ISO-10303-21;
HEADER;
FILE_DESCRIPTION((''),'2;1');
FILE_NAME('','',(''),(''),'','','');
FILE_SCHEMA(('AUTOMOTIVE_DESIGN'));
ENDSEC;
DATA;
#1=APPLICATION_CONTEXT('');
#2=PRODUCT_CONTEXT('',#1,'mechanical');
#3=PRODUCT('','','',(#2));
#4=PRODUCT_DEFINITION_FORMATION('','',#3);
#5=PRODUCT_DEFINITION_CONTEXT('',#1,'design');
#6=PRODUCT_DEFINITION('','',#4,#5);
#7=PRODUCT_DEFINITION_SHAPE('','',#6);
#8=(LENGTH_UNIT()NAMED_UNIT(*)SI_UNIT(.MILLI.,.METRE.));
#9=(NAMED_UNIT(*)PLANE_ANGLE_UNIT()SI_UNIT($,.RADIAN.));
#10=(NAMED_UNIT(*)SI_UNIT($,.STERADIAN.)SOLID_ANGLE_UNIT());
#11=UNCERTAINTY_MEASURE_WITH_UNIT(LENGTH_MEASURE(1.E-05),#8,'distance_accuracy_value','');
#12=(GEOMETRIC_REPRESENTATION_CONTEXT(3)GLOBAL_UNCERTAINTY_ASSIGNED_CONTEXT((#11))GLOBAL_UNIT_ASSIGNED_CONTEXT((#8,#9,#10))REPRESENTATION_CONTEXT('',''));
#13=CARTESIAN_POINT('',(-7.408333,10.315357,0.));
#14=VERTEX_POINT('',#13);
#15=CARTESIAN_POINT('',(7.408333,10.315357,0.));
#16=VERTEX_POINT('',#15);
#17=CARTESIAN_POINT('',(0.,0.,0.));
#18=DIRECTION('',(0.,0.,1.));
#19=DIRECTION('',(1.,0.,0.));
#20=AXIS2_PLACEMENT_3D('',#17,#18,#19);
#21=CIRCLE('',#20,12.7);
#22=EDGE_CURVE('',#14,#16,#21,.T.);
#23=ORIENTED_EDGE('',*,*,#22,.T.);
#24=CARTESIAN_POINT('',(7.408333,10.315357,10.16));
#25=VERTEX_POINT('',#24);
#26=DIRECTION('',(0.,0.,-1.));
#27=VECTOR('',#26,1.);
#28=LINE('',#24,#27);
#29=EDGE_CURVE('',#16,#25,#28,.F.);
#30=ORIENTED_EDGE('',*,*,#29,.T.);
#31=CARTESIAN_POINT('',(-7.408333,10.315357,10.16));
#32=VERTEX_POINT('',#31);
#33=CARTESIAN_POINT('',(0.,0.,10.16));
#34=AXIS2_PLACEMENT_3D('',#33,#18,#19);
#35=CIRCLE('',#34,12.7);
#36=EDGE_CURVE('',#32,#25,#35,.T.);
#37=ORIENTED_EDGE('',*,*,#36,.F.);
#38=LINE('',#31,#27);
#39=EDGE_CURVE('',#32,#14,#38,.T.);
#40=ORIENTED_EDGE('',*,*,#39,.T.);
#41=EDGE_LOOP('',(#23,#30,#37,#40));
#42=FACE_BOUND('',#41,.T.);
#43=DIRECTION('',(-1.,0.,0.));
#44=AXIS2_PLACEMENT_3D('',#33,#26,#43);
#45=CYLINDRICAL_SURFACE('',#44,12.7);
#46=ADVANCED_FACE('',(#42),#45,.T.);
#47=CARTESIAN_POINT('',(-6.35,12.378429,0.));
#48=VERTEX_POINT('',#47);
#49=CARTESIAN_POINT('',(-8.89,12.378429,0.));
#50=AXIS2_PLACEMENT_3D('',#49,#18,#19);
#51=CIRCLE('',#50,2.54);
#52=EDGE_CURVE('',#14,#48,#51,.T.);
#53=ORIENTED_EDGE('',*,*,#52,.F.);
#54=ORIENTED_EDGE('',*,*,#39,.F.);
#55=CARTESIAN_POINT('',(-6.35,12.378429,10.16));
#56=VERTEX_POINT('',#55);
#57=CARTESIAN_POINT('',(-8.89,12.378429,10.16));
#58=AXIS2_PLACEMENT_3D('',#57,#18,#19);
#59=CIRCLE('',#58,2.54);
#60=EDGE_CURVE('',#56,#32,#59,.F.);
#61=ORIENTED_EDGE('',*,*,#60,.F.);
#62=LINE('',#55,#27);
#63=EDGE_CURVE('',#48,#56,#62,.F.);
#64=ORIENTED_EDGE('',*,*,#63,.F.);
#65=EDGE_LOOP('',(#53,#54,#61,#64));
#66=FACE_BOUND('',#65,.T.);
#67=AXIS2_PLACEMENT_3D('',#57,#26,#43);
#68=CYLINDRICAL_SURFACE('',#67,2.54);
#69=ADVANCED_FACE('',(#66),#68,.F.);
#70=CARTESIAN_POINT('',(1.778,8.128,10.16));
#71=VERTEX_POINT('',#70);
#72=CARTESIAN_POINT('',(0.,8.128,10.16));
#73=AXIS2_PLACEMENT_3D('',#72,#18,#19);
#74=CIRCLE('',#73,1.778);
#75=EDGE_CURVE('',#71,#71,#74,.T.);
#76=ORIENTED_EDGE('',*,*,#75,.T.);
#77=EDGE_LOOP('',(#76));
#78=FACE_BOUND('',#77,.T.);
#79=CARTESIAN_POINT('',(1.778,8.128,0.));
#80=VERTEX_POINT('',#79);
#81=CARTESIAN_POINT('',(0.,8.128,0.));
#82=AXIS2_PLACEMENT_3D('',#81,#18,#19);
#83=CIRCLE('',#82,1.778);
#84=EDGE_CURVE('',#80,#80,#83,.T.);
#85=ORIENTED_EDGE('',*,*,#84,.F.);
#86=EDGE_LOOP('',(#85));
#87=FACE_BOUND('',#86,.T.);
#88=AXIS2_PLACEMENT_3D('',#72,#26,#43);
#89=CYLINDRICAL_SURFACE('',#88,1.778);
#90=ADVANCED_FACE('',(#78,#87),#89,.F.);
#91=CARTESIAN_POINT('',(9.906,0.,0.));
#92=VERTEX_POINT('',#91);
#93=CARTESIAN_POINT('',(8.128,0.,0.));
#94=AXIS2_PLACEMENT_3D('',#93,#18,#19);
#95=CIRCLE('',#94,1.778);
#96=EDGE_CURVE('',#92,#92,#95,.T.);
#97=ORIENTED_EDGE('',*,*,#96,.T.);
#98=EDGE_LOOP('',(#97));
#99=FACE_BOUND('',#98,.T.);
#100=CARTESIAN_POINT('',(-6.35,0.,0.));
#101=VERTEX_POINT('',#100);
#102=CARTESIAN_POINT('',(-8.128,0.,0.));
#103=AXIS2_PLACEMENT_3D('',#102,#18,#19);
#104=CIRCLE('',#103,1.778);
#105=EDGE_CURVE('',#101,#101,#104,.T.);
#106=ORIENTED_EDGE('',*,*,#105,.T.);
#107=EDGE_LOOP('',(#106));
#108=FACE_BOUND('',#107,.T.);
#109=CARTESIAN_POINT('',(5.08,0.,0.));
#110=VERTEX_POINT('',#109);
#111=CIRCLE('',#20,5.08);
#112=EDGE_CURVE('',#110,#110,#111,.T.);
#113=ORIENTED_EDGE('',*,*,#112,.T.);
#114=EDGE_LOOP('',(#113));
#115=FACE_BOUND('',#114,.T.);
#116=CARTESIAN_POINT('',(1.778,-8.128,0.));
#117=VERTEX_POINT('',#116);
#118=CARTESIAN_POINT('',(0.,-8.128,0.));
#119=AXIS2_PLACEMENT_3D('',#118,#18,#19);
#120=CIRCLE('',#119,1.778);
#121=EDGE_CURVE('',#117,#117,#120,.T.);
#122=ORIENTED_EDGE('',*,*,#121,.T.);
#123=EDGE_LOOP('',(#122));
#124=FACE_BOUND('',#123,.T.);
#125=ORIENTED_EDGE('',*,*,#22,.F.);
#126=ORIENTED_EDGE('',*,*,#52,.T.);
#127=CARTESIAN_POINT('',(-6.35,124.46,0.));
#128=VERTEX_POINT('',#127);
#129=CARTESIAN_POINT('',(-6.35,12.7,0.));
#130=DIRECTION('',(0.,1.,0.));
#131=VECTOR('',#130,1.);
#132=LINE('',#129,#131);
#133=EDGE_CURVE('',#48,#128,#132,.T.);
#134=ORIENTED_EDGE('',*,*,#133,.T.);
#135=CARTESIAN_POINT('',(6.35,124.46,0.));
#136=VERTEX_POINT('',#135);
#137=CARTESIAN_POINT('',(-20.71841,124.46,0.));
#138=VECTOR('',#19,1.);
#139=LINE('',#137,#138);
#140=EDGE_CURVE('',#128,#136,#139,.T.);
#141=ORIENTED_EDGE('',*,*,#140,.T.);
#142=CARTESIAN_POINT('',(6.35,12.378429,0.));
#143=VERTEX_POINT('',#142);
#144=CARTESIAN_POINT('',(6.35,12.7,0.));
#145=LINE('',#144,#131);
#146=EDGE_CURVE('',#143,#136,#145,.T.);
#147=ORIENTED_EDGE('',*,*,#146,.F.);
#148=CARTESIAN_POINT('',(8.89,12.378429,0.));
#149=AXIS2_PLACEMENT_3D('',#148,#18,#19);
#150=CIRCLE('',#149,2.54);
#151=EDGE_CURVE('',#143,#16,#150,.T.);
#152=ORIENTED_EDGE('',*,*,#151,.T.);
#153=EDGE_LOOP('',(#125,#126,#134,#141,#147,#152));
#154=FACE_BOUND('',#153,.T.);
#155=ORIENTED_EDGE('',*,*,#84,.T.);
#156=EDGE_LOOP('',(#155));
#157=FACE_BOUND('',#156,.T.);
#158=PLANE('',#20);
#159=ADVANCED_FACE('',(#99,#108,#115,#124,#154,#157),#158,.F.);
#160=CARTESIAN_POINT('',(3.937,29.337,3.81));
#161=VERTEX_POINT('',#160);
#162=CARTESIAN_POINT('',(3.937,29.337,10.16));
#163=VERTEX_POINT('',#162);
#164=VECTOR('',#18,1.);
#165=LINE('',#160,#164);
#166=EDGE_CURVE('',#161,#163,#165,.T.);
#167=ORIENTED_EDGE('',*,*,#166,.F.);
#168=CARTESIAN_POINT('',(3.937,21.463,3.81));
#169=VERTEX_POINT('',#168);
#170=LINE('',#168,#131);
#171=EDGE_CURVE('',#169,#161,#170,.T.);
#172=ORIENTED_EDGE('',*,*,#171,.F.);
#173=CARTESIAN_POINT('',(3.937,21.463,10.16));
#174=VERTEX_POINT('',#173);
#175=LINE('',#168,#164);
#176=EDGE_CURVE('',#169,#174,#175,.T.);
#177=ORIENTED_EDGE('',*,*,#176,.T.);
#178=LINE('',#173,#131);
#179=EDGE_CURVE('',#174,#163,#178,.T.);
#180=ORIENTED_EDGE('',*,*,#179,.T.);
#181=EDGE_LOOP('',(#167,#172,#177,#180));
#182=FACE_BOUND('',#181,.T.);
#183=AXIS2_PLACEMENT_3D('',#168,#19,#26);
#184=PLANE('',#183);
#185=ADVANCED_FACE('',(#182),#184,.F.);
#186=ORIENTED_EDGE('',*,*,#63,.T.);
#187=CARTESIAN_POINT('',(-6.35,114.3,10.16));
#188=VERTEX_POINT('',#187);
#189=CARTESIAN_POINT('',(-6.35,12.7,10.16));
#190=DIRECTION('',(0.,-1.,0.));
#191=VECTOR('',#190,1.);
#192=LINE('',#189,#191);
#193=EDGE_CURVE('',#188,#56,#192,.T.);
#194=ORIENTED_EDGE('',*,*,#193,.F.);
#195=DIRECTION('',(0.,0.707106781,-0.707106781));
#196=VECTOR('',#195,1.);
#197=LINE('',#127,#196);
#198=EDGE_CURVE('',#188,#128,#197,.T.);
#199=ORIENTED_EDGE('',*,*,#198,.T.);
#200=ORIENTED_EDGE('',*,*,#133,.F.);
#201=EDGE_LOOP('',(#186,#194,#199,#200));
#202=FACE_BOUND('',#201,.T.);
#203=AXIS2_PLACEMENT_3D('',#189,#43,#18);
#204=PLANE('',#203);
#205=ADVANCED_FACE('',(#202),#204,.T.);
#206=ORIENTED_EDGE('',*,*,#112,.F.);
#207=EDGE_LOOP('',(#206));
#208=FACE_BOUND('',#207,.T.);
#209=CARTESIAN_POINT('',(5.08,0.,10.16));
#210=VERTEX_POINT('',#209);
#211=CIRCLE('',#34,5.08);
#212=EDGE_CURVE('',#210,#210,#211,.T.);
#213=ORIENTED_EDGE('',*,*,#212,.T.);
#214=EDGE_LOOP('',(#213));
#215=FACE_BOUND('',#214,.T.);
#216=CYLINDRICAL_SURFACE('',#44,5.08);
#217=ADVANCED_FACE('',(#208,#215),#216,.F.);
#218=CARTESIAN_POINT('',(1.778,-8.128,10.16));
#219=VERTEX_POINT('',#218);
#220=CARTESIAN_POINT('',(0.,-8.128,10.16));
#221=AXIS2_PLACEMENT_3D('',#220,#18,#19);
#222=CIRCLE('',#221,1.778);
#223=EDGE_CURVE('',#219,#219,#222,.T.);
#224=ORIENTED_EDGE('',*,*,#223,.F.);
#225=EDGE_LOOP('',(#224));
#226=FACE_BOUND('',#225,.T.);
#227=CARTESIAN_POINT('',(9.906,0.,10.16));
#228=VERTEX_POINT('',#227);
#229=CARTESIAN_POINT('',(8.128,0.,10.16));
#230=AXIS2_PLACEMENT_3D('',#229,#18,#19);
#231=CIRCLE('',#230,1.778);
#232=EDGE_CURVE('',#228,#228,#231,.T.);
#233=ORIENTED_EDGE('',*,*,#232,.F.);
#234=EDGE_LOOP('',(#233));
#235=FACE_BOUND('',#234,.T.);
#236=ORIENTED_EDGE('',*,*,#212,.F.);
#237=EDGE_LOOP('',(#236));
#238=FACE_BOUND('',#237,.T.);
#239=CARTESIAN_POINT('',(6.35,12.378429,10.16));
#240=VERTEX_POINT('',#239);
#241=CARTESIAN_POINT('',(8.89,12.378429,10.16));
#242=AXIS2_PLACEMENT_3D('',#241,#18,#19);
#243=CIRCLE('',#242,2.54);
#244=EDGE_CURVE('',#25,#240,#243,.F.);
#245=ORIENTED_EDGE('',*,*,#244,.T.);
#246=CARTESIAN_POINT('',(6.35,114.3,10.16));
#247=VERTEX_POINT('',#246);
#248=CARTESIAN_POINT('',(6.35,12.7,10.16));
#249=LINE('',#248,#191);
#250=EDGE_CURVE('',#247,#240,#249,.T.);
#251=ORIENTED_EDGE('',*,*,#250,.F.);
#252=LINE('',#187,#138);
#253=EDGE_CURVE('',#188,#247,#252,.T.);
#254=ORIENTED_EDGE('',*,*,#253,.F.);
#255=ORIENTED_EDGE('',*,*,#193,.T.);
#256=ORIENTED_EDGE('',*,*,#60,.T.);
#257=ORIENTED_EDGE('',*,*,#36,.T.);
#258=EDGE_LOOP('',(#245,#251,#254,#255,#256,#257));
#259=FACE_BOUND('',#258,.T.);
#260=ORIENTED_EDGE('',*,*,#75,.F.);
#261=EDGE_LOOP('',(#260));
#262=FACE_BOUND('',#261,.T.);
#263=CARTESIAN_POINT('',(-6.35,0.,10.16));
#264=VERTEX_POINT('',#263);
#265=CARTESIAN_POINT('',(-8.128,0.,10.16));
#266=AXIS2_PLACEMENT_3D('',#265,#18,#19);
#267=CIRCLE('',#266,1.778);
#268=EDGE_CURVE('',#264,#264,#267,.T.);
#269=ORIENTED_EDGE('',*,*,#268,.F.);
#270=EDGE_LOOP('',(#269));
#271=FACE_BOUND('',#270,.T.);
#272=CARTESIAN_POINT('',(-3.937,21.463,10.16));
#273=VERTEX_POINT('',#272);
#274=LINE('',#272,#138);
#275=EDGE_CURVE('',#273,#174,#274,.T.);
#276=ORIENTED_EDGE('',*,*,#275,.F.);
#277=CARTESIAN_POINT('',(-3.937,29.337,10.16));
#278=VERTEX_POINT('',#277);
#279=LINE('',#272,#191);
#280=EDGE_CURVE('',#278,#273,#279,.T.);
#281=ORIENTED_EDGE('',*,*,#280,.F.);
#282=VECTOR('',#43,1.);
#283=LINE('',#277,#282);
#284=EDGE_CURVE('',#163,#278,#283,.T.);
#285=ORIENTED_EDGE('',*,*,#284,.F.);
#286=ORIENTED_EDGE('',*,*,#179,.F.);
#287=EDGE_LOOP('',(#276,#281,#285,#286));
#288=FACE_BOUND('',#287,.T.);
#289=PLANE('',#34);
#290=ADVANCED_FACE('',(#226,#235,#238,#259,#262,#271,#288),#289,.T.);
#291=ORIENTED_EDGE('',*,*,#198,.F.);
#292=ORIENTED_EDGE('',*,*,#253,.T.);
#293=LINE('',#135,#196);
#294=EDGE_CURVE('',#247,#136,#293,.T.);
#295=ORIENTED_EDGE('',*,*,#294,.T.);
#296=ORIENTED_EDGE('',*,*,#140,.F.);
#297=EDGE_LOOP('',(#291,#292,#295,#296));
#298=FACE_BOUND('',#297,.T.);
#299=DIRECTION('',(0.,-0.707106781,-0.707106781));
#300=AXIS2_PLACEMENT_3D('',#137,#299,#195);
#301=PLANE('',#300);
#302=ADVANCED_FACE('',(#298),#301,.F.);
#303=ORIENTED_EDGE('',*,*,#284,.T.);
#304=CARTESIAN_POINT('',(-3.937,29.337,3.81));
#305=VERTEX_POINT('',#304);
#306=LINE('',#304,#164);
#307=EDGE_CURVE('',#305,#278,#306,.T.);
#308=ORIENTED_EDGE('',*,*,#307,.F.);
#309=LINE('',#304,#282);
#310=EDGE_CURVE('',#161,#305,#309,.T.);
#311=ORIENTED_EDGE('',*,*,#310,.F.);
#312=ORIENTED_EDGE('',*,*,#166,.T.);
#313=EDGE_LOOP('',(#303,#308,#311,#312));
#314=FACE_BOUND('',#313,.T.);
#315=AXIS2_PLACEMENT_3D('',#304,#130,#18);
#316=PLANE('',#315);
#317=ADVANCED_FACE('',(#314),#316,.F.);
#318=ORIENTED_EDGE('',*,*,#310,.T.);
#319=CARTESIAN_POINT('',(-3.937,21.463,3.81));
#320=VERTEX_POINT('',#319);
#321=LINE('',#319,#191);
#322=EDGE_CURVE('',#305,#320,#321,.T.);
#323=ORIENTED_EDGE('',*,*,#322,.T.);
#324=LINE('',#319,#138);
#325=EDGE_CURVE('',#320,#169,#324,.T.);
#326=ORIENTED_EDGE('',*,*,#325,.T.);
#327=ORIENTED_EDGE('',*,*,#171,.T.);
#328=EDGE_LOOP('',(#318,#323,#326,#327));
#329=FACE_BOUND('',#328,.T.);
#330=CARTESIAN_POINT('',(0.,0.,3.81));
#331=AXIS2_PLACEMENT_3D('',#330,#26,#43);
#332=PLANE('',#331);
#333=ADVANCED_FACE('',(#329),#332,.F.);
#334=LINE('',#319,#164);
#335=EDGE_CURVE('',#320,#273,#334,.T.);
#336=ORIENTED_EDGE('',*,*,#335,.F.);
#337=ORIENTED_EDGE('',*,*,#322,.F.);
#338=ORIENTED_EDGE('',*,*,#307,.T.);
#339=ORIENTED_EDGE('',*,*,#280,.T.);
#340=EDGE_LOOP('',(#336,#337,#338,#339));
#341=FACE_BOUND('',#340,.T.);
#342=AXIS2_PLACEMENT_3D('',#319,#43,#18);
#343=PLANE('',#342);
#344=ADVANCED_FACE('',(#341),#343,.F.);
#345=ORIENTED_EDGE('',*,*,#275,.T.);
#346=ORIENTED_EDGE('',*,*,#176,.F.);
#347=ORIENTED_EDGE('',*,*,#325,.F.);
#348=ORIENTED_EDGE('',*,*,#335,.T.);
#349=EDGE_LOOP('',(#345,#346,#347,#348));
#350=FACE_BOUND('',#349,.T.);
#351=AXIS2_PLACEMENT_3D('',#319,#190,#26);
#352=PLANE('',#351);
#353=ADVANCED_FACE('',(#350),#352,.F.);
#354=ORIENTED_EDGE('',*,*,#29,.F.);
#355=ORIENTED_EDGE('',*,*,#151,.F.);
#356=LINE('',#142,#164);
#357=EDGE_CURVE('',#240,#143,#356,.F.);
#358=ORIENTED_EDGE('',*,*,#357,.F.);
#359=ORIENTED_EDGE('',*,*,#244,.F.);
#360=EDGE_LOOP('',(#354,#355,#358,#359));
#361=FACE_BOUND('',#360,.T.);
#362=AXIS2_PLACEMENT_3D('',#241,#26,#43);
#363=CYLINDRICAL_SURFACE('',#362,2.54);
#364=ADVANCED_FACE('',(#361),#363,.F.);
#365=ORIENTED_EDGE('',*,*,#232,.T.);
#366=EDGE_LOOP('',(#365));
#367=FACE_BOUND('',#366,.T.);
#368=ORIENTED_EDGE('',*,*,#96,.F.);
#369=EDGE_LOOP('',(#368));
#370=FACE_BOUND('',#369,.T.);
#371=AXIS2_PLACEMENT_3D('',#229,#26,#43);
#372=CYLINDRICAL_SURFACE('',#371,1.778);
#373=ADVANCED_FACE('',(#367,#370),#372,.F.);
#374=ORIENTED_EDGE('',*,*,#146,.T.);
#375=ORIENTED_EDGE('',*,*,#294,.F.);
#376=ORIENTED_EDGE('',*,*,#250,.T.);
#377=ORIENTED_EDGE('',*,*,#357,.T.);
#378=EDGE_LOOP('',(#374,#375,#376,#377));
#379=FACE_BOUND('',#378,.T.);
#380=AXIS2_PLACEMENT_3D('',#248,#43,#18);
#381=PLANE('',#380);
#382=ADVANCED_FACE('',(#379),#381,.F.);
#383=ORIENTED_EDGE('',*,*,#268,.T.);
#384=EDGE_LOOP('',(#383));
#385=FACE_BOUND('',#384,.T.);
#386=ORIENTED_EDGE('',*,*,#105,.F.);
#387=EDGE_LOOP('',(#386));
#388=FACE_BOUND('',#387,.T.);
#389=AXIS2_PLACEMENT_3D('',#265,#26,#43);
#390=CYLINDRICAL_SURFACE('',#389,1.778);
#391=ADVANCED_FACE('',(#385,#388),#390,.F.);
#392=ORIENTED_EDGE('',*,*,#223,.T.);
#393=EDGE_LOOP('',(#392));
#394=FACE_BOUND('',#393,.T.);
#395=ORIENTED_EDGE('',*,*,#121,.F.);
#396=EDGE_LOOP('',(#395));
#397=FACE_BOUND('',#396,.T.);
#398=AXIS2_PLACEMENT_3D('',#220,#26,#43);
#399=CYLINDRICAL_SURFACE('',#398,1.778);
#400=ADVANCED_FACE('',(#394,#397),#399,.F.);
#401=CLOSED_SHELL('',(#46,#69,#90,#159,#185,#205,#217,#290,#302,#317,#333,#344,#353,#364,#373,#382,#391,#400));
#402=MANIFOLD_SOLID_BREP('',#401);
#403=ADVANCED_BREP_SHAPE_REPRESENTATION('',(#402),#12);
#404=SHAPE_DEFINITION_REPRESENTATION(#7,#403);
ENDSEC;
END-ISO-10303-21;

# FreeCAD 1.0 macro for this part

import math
import FreeCAD as App
import Part
import Sketcher
from FreeCAD import Vector
Q = App.Units.Quantity


def edges_at(feature, points):
    """Names of the edges that pass closest to the given points."""
    edges = feature.Shape.Edges
    near = lambda p: min(range(len(edges)), key=lambda i: edges[i].distToShape(Part.Vertex(*p))[0])
    return sorted({f"Edge{near(p) + 1}" for p in points})


def add_polygon(sketch, points):
    """Adds a closed chain of lines whose ends are joined by coincident constraints."""
    first, n = sketch.GeometryCount, len(points)
    for a, b in zip(points, points[1:] + points[:1]):
        sketch.addGeometry(Part.LineSegment(App.Vector(*a, 0), App.Vector(*b, 0)), False)
    for i in range(n):
        sketch.addConstraint(Sketcher.Constraint("Coincident", first + i, 2, first + (i + 1) % n, 1))

doc = App.newDocument("Part")
params = doc.addObject("Spreadsheet::Sheet", "Params")
for row, (alias, value) in enumerate([
    ("sketch1_diameter", "0.4 in"),
    ("sketch1_radius", "0.5 in"),
    ("sketch1_diameter2", "0.14 in"),
    ("sketch1_width", "0.5 in"),
    ("pad1_length", "0.4 in"),
    ("sketch2_width", "0.4 in"),
    ("pad2_length", "0.5 in"),
    ("sketch3_width", "0.31 in"),
    ("pocket1_length", "0.25 in"),
    ("fillet_radius", "0.1 in"),
], start=1):
    params.set(f"A{row}", alias)
    params.set(f"B{row}", "=" + value)
    params.setAlias(f"B{row}", alias)

body = doc.addObject("PartDesign::Body", "Body")

sketch1 = body.newObject("Sketcher::SketchObject", "Sketch")
sketch1.AttachmentSupport = (doc.getObject("XY_Plane"), [""])
sketch1.MapMode = "FlatFace"
sketch1.addGeometry([
    Part.ArcOfCircle(Part.Circle(Vector(0, 0, 0), Vector(0, 0, 1), 12.7), math.radians(120), math.radians(420)),
    Part.LineSegment(Vector(6.3, 11, 0), Vector(6.3, 114.3, 0)),
    Part.LineSegment(Vector(6.3, 114.3, 0), Vector(-6.3, 114.3, 0)),
    Part.LineSegment(Vector(-6.3, 114.3, 0), Vector(-6.3, 11, 0)),
    Part.Circle(Vector(0, -8.1, 0), Vector(0, 0, 1), 1.8),
    Part.Circle(Vector(-8.1, 0, 0), Vector(0, 0, 1), 1.8),
    Part.Circle(Vector(0, 0, 0), Vector(0, 0, 1), 5.1),
    Part.Circle(Vector(0, 8.1, 0), Vector(0, 0, 1), 1.8),
    Part.Circle(Vector(8.1, 0, 0), Vector(0, 0, 1), 1.8),
], False)
sketch1.addConstraint([
    Sketcher.Constraint("Coincident", 0, 2, 1, 1),
    Sketcher.Constraint("Coincident", 1, 2, 2, 1),
    Sketcher.Constraint("Coincident", 2, 2, 3, 1),
    Sketcher.Constraint("Coincident", 3, 2, 0, 1),
    Sketcher.Constraint("Vertical", 1),
    Sketcher.Constraint("Horizontal", 2),
    Sketcher.Constraint("Vertical", 3),
    Sketcher.Constraint("Coincident", 0, 3, -1, 1),
    Sketcher.Constraint("Coincident", 6, 3, -1, 1),
    Sketcher.Constraint("Equal", 4, 5),
    Sketcher.Constraint("Equal", 5, 7),
    Sketcher.Constraint("Equal", 7, 8),
    Sketcher.Constraint("Symmetric", 4, 3, 7, 3, -1, 1),
    Sketcher.Constraint("Symmetric", 5, 3, 8, 3, -1, 1),
    Sketcher.Constraint("PointOnObject", 4, 3, -2),
    Sketcher.Constraint("PointOnObject", 5, 3, -1),
    Sketcher.Constraint("Horizontal", 0, 2, 3, 2),
    Sketcher.Constraint("Diameter", 6, Q("0.4 in")),
    Sketcher.Constraint("Radius", 0, Q("0.5 in")),
    Sketcher.Constraint("Diameter", 4, Q("0.14 in")),
    Sketcher.Constraint("DistanceX", 2, 2, 2, 1, Q("0.5 in")),
    Sketcher.Constraint("DistanceY", -1, 1, 1, 2, Q("4.5 in")),
    Sketcher.Constraint("DistanceY", 4, 3, -1, 1, Q("0.32 in")),
    Sketcher.Constraint("DistanceX", 5, 3, -1, 1, Q("0.32 in")),
])
sketch1.setExpression("Constraints[17]", "Params.sketch1_diameter")
sketch1.setExpression("Constraints[18]", "Params.sketch1_radius")
sketch1.setExpression("Constraints[19]", "Params.sketch1_diameter2")
sketch1.setExpression("Constraints[20]", "Params.sketch1_width")
pad1 = body.newObject("PartDesign::Pad", "Pad")
pad1.Profile = sketch1
pad1.setExpression("Length", "Params.pad1_length")

sketch2 = body.newObject("Sketcher::SketchObject", "Sketch001")
sketch2.AttachmentSupport = (doc.getObject("YZ_Plane"), [""])
sketch2.MapMode = "FlatFace"
sketch2.AttachmentOffset = App.Placement(Vector(0, 0, 0.25 * 25.4), App.Rotation())
add_polygon(sketch2, [(114, 10), (124, 0), (114, 0)])
sketch2.addConstraint([
    Sketcher.Constraint("Horizontal", 1),
    Sketcher.Constraint("Vertical", 2),
    Sketcher.Constraint("PointOnObject", 0, 2, -1),
    Sketcher.Constraint("Equal", 1, 2),
    Sketcher.Constraint("DistanceX", 1, 2, 1, 1, Q("0.4 in")),
    Sketcher.Constraint("DistanceX", -1, 1, 0, 2, Q("4.9 in")),
])
sketch2.setExpression("Constraints[7]", "Params.sketch2_width")
pad2 = body.newObject("PartDesign::Pad", "Pad001")
pad2.Profile = sketch2
pad2.setExpression("Length", "Params.pad2_length")
pad2.Reversed = True

sketch3 = body.newObject("Sketcher::SketchObject", "Sketch002")
sketch3.AttachmentSupport = (doc.getObject("XY_Plane"), [""])
sketch3.MapMode = "FlatFace"
sketch3.AttachmentOffset = App.Placement(Vector(0, 0, 0.4 * 25.4), App.Rotation())
add_polygon(sketch3, [(-4, 29), (-4, 21), (4, 21), (4, 29)])
sketch3.addConstraint([
    Sketcher.Constraint("Vertical", 0),
    Sketcher.Constraint("Horizontal", 1),
    Sketcher.Constraint("Vertical", 2),
    Sketcher.Constraint("Horizontal", 3),
    Sketcher.Constraint("Equal", 3, 0),
    Sketcher.Constraint("DistanceX", 1, 1, 1, 2, Q("0.31 in")),
    Sketcher.Constraint("DistanceX", 0, 2, -1, 1, Q("0.155 in")),
    Sketcher.Constraint("DistanceY", -1, 1, 0, 2, Q("0.845 in")),
])
sketch3.setExpression("Constraints[9]", "Params.sketch3_width")
pocket1 = body.newObject("PartDesign::Pocket", "Pocket")
pocket1.Profile = sketch3
pocket1.setExpression("Length", "Params.pocket1_length")
doc.recompute()

fillet = body.newObject("PartDesign::Fillet", "Fillet")
fillet.Base = (pocket1, edges_at(pocket1, [(6.35, 10.999, 5.08), (-6.35, 10.999, 5.08)]))
fillet.setExpression("Radius", "Params.fillet_radius")

doc.recompute()
